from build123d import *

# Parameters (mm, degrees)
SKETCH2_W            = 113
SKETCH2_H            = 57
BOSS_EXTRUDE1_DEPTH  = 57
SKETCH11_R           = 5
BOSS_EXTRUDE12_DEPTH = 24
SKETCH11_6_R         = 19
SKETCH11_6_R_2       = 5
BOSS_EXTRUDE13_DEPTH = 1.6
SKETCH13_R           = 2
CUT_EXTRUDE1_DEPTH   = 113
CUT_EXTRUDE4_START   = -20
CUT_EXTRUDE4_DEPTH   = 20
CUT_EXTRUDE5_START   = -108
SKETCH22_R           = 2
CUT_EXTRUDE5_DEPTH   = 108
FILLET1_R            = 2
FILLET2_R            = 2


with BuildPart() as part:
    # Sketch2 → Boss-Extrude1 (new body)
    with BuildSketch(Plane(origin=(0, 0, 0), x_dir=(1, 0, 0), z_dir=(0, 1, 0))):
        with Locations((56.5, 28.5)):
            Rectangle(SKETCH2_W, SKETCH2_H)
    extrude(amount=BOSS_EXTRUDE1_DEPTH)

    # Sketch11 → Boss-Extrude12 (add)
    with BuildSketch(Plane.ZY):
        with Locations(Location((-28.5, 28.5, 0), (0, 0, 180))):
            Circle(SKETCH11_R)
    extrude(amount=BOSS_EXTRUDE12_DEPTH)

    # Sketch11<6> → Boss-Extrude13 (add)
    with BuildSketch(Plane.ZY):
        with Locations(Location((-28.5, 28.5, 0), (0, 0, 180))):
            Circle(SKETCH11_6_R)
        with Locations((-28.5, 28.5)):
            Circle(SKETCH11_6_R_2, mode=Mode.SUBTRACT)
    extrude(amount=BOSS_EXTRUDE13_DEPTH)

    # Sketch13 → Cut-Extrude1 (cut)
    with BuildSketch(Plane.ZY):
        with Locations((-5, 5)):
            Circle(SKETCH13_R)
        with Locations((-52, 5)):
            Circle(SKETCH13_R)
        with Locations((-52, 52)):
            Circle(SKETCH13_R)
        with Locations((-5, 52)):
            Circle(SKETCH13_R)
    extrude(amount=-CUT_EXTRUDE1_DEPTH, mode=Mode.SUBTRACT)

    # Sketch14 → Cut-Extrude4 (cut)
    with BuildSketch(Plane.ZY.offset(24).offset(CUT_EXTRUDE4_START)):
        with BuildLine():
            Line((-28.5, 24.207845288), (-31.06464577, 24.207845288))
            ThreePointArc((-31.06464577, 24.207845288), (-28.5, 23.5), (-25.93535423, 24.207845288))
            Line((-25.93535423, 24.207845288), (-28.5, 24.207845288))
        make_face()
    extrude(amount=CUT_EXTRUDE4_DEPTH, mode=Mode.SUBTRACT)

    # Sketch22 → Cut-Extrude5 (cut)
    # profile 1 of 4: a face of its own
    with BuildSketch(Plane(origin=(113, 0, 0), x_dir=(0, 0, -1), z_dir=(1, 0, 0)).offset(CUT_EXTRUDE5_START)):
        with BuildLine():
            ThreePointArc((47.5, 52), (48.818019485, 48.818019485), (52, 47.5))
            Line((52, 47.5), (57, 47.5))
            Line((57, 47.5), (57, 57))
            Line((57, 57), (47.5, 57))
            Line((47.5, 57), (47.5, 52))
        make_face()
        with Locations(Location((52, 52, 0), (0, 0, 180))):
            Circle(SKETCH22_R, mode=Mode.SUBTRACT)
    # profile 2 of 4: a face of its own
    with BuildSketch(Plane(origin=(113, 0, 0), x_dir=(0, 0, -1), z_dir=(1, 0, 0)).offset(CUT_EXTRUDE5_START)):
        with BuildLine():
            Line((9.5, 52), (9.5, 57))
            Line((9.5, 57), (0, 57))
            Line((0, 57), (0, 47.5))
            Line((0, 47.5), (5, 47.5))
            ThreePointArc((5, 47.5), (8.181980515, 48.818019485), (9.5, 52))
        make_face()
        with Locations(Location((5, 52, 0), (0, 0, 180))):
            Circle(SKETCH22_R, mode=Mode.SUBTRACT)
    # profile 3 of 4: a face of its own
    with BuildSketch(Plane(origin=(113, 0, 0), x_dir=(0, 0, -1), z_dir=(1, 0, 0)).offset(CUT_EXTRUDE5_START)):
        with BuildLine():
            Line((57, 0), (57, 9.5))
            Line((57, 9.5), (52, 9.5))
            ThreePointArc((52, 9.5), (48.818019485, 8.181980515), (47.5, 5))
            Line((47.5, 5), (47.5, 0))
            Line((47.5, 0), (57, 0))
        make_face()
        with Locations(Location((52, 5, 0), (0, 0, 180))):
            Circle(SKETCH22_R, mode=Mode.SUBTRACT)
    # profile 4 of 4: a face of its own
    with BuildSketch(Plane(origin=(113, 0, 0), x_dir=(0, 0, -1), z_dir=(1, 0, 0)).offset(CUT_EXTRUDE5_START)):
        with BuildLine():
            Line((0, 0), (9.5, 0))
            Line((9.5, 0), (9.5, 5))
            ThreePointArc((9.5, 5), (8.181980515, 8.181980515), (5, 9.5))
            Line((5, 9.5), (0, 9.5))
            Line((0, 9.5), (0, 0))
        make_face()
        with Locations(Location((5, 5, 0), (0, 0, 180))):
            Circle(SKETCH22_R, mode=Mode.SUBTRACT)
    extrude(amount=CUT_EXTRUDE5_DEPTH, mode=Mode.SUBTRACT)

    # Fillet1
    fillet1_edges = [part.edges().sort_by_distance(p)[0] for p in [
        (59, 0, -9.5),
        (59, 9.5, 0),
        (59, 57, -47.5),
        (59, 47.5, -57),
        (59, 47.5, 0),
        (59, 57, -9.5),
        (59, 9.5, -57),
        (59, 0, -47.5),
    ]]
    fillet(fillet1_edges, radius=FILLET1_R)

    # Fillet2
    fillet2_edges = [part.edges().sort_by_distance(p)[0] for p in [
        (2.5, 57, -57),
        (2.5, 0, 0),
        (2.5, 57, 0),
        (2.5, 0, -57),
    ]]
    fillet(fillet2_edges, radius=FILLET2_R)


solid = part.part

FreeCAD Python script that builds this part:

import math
import FreeCAD as App
import Part
import Sketcher

V = App.Vector
Q = App.Units.Quantity


def edges_at(feature, points):
    """Names of the edges that pass closest to the given points."""
    edges = feature.Shape.Edges
    near = lambda p: min(range(len(edges)), key=lambda i: edges[i].distToShape(Part.Vertex(*p))[0])
    return sorted({f"Edge{near(p) + 1}" for p in points})

doc = App.newDocument("Part")
body = doc.addObject("PartDesign::Body", "Body")

# Sketch on XZ plane
sketch1 = body.newObject("Sketcher::SketchObject", "Sketch")
sketch1.AttachmentSupport = (doc.getObject("XZ_Plane"), [""])
sketch1.MapMode = "FlatFace"
sketch1.addGeometry(Part.LineSegment(V(0, -57, 0), V(0, 0, 0)), False)
sketch1.addGeometry(Part.LineSegment(V(0, 0, 0), V(113, 0, 0)), False)
sketch1.addGeometry(Part.LineSegment(V(113, 0, 0), V(113, -57, 0)), False)
sketch1.addGeometry(Part.LineSegment(V(113, -57, 0), V(0, -57, 0)), False)
sketch1.addConstraint(Sketcher.Constraint("Coincident", 0, 2, 1, 1))
sketch1.addConstraint(Sketcher.Constraint("Coincident", 1, 2, 2, 1))
sketch1.addConstraint(Sketcher.Constraint("Coincident", 2, 2, 3, 1))
sketch1.addConstraint(Sketcher.Constraint("Coincident", 3, 2, 0, 1))
sketch1.addConstraint(Sketcher.Constraint("Vertical", 0))
sketch1.addConstraint(Sketcher.Constraint("Horizontal", 1))
sketch1.addConstraint(Sketcher.Constraint("Vertical", 2))
sketch1.addConstraint(Sketcher.Constraint("Horizontal", 3))
sketch1.addConstraint(Sketcher.Constraint("Coincident", 0, 2, -1, 1))
sketch1.addConstraint(Sketcher.Constraint("DistanceX", 1, 1, 1, 2, Q("113 mm")))
sketch1.addConstraint(Sketcher.Constraint("DistanceY", 0, 1, 0, 2, Q("57 mm")))
pad1 = body.newObject("PartDesign::Pad", "Pad")
pad1.Profile = sketch1
pad1.Length = 57
pad1.Reversed = True

# Sketch on YZ plane
sketch2 = body.newObject("Sketcher::SketchObject", "Sketch001")
sketch2.AttachmentSupport = (doc.getObject("YZ_Plane"), [""])
sketch2.MapMode = "FlatFace"
sketch2.addGeometry(Part.Circle(V(28, -28, 0), V(0, 0, 1), 5), False)
sketch2.addConstraint(Sketcher.Constraint("Diameter", 0, Q("10 mm")))
sketch2.addConstraint(Sketcher.Constraint("DistanceX", -1, 1, 0, 3, Q("28.5 mm")))
sketch2.addConstraint(Sketcher.Constraint("DistanceY", 0, 3, -1, 1, Q("28.5 mm")))
pad2 = body.newObject("PartDesign::Pad", "Pad001")
pad2.Profile = sketch2
pad2.Length = 24
pad2.Reversed = True

# Sketch on YZ plane
sketch3 = body.newObject("Sketcher::SketchObject", "Sketch002")
sketch3.AttachmentSupport = (doc.getObject("YZ_Plane"), [""])
sketch3.MapMode = "FlatFace"
sketch3.addGeometry(Part.Circle(V(28, -28, 0), V(0, 0, 1), 19), False)
sketch3.addGeometry(Part.Circle(V(28, -28, 0), V(0, 0, 1), 5), False)
sketch3.addConstraint(Sketcher.Constraint("Coincident", 1, 3, 0, 3))
sketch3.addConstraint(Sketcher.Constraint("Diameter", 0, Q("38 mm")))
sketch3.addConstraint(Sketcher.Constraint("Diameter", 1, Q("10 mm")))
sketch3.addConstraint(Sketcher.Constraint("DistanceX", -1, 1, 0, 3, Q("28.5 mm")))
sketch3.addConstraint(Sketcher.Constraint("DistanceY", 0, 3, -1, 1, Q("28.5 mm")))
pad3 = body.newObject("PartDesign::Pad", "Pad002")
pad3.Profile = sketch3
pad3.Length = 1.6
pad3.Reversed = True

# Sketch on YZ plane
sketch4 = body.newObject("Sketcher::SketchObject", "Sketch003")
sketch4.AttachmentSupport = (doc.getObject("YZ_Plane"), [""])
sketch4.MapMode = "FlatFace"
sketch4.addGeometry(Part.Circle(V(5, -5, 0), V(0, 0, 1), 2), False)
sketch4.addGeometry(Part.Circle(V(5, -52, 0), V(0, 0, 1), 2), False)
sketch4.addGeometry(Part.Circle(V(52, -52, 0), V(0, 0, 1), 2), False)
sketch4.addGeometry(Part.Circle(V(52, -5, 0), V(0, 0, 1), 2), False)
sketch4.addConstraint(Sketcher.Constraint("Equal", 0, 1))
sketch4.addConstraint(Sketcher.Constraint("Equal", 1, 2))
sketch4.addConstraint(Sketcher.Constraint("Equal", 2, 3))
sketch4.addConstraint(Sketcher.Constraint("Horizontal", 1, 3, 2, 3))
sketch4.addConstraint(Sketcher.Constraint("Horizontal", 0, 3, 3, 3))
sketch4.addConstraint(Sketcher.Constraint("Vertical", 0, 3, 1, 3))
sketch4.addConstraint(Sketcher.Constraint("Vertical", 2, 3, 3, 3))
sketch4.addConstraint(Sketcher.Constraint("Diameter", 0, Q("4 mm")))
sketch4.addConstraint(Sketcher.Constraint("DistanceX", -1, 1, 0, 3, Q("5 mm")))
sketch4.addConstraint(Sketcher.Constraint("DistanceY", 0, 3, -1, 1, Q("5 mm")))
sketch4.addConstraint(Sketcher.Constraint("DistanceY", 1, 3, -1, 1, Q("52 mm")))
sketch4.addConstraint(Sketcher.Constraint("DistanceX", -1, 1, 2, 3, Q("52 mm")))
pocket1 = body.newObject("PartDesign::Pocket", "Pocket")
pocket1.Profile = sketch4
pocket1.Length = 113
pocket1.Reversed = True

# Sketch on YZ plane
sketch5 = body.newObject("Sketcher::SketchObject", "Sketch004")
sketch5.AttachmentSupport = (doc.getObject("YZ_Plane"), [""])
sketch5.MapMode = "FlatFace"
sketch5.AttachmentOffset = App.Placement(V(0, 0, -4), App.Rotation())
sketch5.addGeometry(Part.ArcOfCircle(Part.Circle(V(28.5, -28.5, 0), V(0, 0, 1), 5), math.radians(149), math.radians(211)), False)
sketch5.addGeometry(Part.LineSegment(V(24.2, -25.9, 0), V(24.2, -31.1, 0)), False)
sketch5.addConstraint(Sketcher.Constraint("Coincident", 0, 1, 1, 1))
sketch5.addConstraint(Sketcher.Constraint("Coincident", 1, 2, 0, 2))
sketch5.addConstraint(Sketcher.Constraint("Vertical", 1))
sketch5.addConstraint(Sketcher.Constraint("Radius", 0, Q("5 mm")))
sketch5.addConstraint(Sketcher.Constraint("DistanceX", -1, 1, 0, 3, Q("28.5 mm")))
sketch5.addConstraint(Sketcher.Constraint("DistanceY", 0, 3, -1, 1, Q("28.5 mm")))
sketch5.addConstraint(Sketcher.Constraint("DistanceY", 1, 2, 1, 1, Q("5.129292 mm")))
pocket2 = body.newObject("PartDesign::Pocket", "Pocket001")
pocket2.Profile = sketch5
pocket2.Length = 20

# Sketch on YZ plane
sketch6 = body.newObject("Sketcher::SketchObject", "Sketch005")
sketch6.AttachmentSupport = (doc.getObject("YZ_Plane"), [""])
sketch6.MapMode = "FlatFace"
sketch6.AttachmentOffset = App.Placement(V(0, 0, 5), App.Rotation())
sketch6.addGeometry(Part.ArcOfCircle(Part.Circle(V(52, -52, 0), V(0, 0, 1), 4.5), math.radians(90), math.radians(180)), False)
sketch6.addGeometry(Part.LineSegment(V(47.5, -52, 0), V(47.5, -57, 0)), False)
sketch6.addGeometry(Part.LineSegment(V(47.5, -57, 0), V(57, -57, 0)), False)
sketch6.addGeometry(Part.LineSegment(V(57, -57, 0), V(57, -47.5, 0)), False)
sketch6.addGeometry(Part.LineSegment(V(57, -47.5, 0), V(52, -47.5, 0)), False)
sketch6.addGeometry(Part.Circle(V(52, -52, 0), V(0, 0, 1), 2), False)
sketch6.addGeometry(Part.LineSegment(V(52, -9.5, 0), V(57, -9.5, 0)), False)
sketch6.addGeometry(Part.LineSegment(V(57, -9.5, 0), V(57, 0, 0)), False)
sketch6.addGeometry(Part.LineSegment(V(57, 0, 0), V(47.5, 0, 0)), False)
sketch6.addGeometry(Part.LineSegment(V(47.5, 0, 0), V(47.5, -5, 0)), False)
sketch6.addGeometry(Part.ArcOfCircle(Part.Circle(V(52, -5, 0), V(0, 0, 1), 4.5), math.radians(-180), math.radians(-90)), False)
sketch6.addGeometry(Part.Circle(V(52, -5, 0), V(0, 0, 1), 2), False)
sketch6.addGeometry(Part.LineSegment(V(0, -57, 0), V(9.5, -57, 0)), False)
sketch6.addGeometry(Part.LineSegment(V(9.5, -57, 0), V(9.5, -52, 0)), False)
sketch6.addGeometry(Part.ArcOfCircle(Part.Circle(V(5, -52, 0), V(0, 0, 1), 4.5), math.radians(0), math.radians(90)), False)
sketch6.addGeometry(Part.LineSegment(V(5, -47.5, 0), V(0, -47.5, 0)), False)
sketch6.addGeometry(Part.LineSegment(V(0, -47.5, 0), V(0, -57, 0)), False)
sketch6.addGeometry(Part.Circle(V(5, -52, 0), V(0, 0, 1), 2), False)
sketch6.addGeometry(Part.LineSegment(V(0, 0, 0), V(0, -9.5, 0)), False)
sketch6.addGeometry(Part.LineSegment(V(0, -9.5, 0), V(5, -9.5, 0)), False)
sketch6.addGeometry(Part.ArcOfCircle(Part.Circle(V(5, -5, 0), V(0, 0, 1), 4.5), math.radians(-90), math.radians(0)), False)
sketch6.addGeometry(Part.LineSegment(V(9.5, -5, 0), V(9.5, 0, 0)), False)
sketch6.addGeometry(Part.LineSegment(V(9.5, 0, 0), V(0, 0, 0)), False)
sketch6.addGeometry(Part.Circle(V(5, -5, 0), V(0, 0, 1), 2), False)
sketch6.addConstraint(Sketcher.Constraint("Tangent", 0, 2, 1, 1))
sketch6.addConstraint(Sketcher.Constraint("Coincident", 1, 2, 2, 1))
sketch6.addConstraint(Sketcher.Constraint("Coincident", 2, 2, 3, 1))
sketch6.addConstraint(Sketcher.Constraint("Coincident", 3, 2, 4, 1))
sketch6.addConstraint(Sketcher.Constraint("Tangent", 4, 2, 0, 1))
sketch6.addConstraint(Sketcher.Constraint("Coincident", 6, 2, 7, 1))
sketch6.addConstraint(Sketcher.Constraint("Coincident", 7, 2, 8, 1))
sketch6.addConstraint(Sketcher.Constraint("Coincident", 8, 2, 9, 1))
sketch6.addConstraint(Sketcher.Constraint("Tangent", 9, 2, 10, 1))
sketch6.addConstraint(Sketcher.Constraint("Tangent", 10, 2, 6, 1))
sketch6.addConstraint(Sketcher.Constraint("Coincident", 12, 2, 13, 1))
sketch6.addConstraint(Sketcher.Constraint("Tangent", 13, 2, 14, 1))
sketch6.addConstraint(Sketcher.Constraint("Tangent", 14, 2, 15, 1))
sketch6.addConstraint(Sketcher.Constraint("Coincident", 15, 2, 16, 1))
sketch6.addConstraint(Sketcher.Constraint("Coincident", 16, 2, 12, 1))
sketch6.addConstraint(Sketcher.Constraint("Coincident", 18, 2, 19, 1))
sketch6.addConstraint(Sketcher.Constraint("Tangent", 19, 2, 20, 1))
sketch6.addConstraint(Sketcher.Constraint("Tangent", 20, 2, 21, 1))
sketch6.addConstraint(Sketcher.Constraint("Coincident", 21, 2, 22, 1))
sketch6.addConstraint(Sketcher.Constraint("Coincident", 22, 2, 18, 1))
sketch6.addConstraint(Sketcher.Constraint("Vertical", 1))
sketch6.addConstraint(Sketcher.Constraint("Horizontal", 2))
sketch6.addConstraint(Sketcher.Constraint("Vertical", 3))
sketch6.addConstraint(Sketcher.Constraint("Horizontal", 4))
sketch6.addConstraint(Sketcher.Constraint("Horizontal", 6))
sketch6.addConstraint(Sketcher.Constraint("Vertical", 7))
sketch6.addConstraint(Sketcher.Constraint("Horizontal", 8))
sketch6.addConstraint(Sketcher.Constraint("Vertical", 9))
sketch6.addConstraint(Sketcher.Constraint("Horizontal", 12))
sketch6.addConstraint(Sketcher.Constraint("Vertical", 13))
sketch6.addConstraint(Sketcher.Constraint("Horizontal", 15))
sketch6.addConstraint(Sketcher.Constraint("Vertical", 16))
sketch6.addConstraint(Sketcher.Constraint("Vertical", 18))
sketch6.addConstraint(Sketcher.Constraint("Horizontal", 19))
sketch6.addConstraint(Sketcher.Constraint("Vertical", 21))
sketch6.addConstraint(Sketcher.Constraint("Horizontal", 22))
sketch6.addConstraint(Sketcher.Constraint("Coincident", 22, 2, -1, 1))
sketch6.addConstraint(Sketcher.Constraint("Coincident", 5, 3, 0, 3))
sketch6.addConstraint(Sketcher.Constraint("Coincident", 11, 3, 10, 3))
sketch6.addConstraint(Sketcher.Constraint("Coincident", 17, 3, 14, 3))
sketch6.addConstraint(Sketcher.Constraint("Coincident", 23, 3, 20, 3))
sketch6.addConstraint(Sketcher.Constraint("Equal", 0, 10))
sketch6.addConstraint(Sketcher.Constraint("Equal", 5, 11))
sketch6.addConstraint(Sketcher.Constraint("Equal", 10, 14))
sketch6.addConstraint(Sketcher.Constraint("Equal", 11, 17))
sketch6.addConstraint(Sketcher.Constraint("Equal", 14, 20))
sketch6.addConstraint(Sketcher.Constraint("Equal", 17, 23))
sketch6.addConstraint(Sketcher.Constraint("PointOnObject", 7, 2, -1))
sketch6.addConstraint(Sketcher.Constraint("PointOnObject", 15, 2, -2))
sketch6.addConstraint(Sketcher.Constraint("Horizontal", 5, 3, 14, 3))
sketch6.addConstraint(Sketcher.Constraint("Horizontal", 11, 3, 20, 3))
sketch6.addConstraint(Sketcher.Constraint("Horizontal", 2, 2, 12, 2))
sketch6.addConstraint(Sketcher.Constraint("Vertical", 5, 3, 10, 3))
sketch6.addConstraint(Sketcher.Constraint("Vertical", 17, 3, 20, 3))
sketch6.addConstraint(Sketcher.Constraint("Vertical", 3, 2, 6, 2))
sketch6.addConstraint(Sketcher.Constraint("Equal", 8, 12))
sketch6.addConstraint(Sketcher.Constraint("Equal", 19, 1))
sketch6.addConstraint(Sketcher.Constraint("Equal", 3, 7))
sketch6.addConstraint(Sketcher.Constraint("Diameter", 5, Q("4 mm")))
sketch6.addConstraint(Sketcher.Constraint("Radius", 0, Q("4.5 mm")))
sketch6.addConstraint(Sketcher.Constraint("DistanceX", 4, 2, 4, 1, Q("5 mm")))
sketch6.addConstraint(Sketcher.Constraint("DistanceX", -1, 1, 0, 3, Q("52 mm")))
sketch6.addConstraint(Sketcher.Constraint("DistanceY", 0, 3, -1, 1, Q("52 mm")))
pocket3 = body.newObject("PartDesign::Pocket", "Pocket002")
pocket3.Profile = sketch6
pocket3.Length = 108
pocket3.Reversed = True
doc.recompute()

fillet = body.newObject("PartDesign::Fillet", "Fillet")
fillet.Base = (pocket3, edges_at(pocket3, [
    (59, 0, -9.5),
    (59, 9.5, 0),
    (59, 57, -47.5),
    (59, 47.5, -57),
    (59, 47.5, 0),
    (59, 57, -9.5),
    (59, 9.5, -57),
    (59, 0, -47.5),
]))
fillet.Radius = 2
doc.recompute()

fillet2 = body.newObject("PartDesign::Fillet", "Fillet001")
fillet2.Base = (fillet, edges_at(fillet, [
    (2.5, 57, -57),
    (2.5, 0, 0),
    (2.5, 57, 0),
    (2.5, 0, -57),
]))
fillet2.Radius = 2

doc.recompute()
